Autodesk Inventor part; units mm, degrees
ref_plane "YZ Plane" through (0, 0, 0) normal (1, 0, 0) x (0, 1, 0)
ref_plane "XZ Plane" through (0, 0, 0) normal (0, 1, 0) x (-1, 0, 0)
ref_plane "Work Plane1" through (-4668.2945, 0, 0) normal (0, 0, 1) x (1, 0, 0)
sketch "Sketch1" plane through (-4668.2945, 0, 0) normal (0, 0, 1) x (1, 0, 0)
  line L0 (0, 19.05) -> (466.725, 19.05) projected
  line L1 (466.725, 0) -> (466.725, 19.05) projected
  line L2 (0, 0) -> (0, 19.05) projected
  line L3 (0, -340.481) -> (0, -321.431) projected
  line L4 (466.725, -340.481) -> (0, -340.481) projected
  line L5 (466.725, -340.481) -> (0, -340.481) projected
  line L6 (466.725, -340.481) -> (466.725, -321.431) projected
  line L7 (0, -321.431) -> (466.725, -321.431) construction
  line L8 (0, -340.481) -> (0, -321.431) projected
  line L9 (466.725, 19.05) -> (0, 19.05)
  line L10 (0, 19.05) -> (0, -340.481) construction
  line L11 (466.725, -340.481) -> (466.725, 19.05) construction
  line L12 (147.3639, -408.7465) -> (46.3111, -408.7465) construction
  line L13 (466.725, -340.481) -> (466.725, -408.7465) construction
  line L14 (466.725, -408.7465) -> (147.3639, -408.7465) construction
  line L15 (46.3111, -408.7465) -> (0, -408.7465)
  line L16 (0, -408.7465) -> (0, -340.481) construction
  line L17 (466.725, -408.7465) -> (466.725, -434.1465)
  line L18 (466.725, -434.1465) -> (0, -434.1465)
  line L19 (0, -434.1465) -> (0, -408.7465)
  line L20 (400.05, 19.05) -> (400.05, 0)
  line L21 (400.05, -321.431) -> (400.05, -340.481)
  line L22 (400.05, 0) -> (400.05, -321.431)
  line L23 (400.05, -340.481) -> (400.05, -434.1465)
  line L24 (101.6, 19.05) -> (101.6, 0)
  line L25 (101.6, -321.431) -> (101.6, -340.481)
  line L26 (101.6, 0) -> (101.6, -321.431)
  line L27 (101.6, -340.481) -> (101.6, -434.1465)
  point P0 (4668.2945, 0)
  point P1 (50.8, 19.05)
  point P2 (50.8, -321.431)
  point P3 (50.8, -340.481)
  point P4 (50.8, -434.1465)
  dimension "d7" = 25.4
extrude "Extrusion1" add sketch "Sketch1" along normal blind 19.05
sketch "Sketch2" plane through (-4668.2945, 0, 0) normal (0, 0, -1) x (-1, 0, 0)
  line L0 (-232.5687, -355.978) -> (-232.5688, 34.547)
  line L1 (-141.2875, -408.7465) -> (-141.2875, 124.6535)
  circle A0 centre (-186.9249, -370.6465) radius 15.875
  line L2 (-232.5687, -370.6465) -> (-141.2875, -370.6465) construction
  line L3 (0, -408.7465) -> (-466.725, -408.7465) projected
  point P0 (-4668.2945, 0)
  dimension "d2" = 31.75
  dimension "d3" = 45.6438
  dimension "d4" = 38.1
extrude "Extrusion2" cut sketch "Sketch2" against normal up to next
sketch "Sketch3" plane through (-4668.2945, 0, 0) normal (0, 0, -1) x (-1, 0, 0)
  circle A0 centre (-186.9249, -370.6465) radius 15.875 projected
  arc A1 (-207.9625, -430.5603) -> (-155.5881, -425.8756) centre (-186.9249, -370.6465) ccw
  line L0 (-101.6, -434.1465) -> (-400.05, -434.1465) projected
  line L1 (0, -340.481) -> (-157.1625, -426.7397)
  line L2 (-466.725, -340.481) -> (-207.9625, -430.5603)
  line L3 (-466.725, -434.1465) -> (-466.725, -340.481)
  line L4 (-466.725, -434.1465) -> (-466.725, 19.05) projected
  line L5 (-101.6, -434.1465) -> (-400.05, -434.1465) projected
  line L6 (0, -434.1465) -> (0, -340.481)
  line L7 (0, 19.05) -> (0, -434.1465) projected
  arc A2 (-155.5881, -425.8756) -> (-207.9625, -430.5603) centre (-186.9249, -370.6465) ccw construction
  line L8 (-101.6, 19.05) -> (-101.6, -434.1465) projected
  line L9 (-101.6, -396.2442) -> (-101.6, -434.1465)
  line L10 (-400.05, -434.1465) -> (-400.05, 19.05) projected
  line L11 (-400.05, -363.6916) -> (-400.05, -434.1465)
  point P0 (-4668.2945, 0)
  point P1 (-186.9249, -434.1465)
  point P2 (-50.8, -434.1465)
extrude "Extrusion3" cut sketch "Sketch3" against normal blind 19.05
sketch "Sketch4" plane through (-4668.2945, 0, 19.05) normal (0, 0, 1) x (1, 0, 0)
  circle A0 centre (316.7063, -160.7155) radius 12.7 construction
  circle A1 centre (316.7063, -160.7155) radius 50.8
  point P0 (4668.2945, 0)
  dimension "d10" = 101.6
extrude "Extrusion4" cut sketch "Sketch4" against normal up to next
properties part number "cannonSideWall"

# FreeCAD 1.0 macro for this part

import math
import FreeCAD as App
import Part
import Sketcher

V = App.Vector
Q = App.Units.Quantity


def add_polygon(sketch, points):
    """Adds a closed chain of lines whose ends are joined by coincident constraints."""
    first, n = sketch.GeometryCount, len(points)
    for a, b in zip(points, points[1:] + points[:1]):
        sketch.addGeometry(Part.LineSegment(App.Vector(*a, 0), App.Vector(*b, 0)), False)
    for i in range(n):
        sketch.addConstraint(Sketcher.Constraint("Coincident", first + i, 2, first + (i + 1) % n, 1))

doc = App.newDocument("Part")
params = doc.addObject("Spreadsheet::Sheet", "Params")
for row, (alias, value) in enumerate([
    ("sketch1_width", "11.75 in"),
    ("pad1_length", "0.75 in"),
    ("sketch2_diameter", "1.25 in"),
    ("sketch3_radius", "2.5 in"),
    ("sketch3_diameter", "1.25 in"),
    ("pocket2_length", "0.75 in"),
    ("sketch4_diameter", "4 in"),
], start=1):
    params.set(f"A{row}", alias)
    params.set(f"B{row}", "=" + value)
    params.setAlias(f"B{row}", alias)

body = doc.addObject("PartDesign::Body", "Body")

sketch1 = doc.addObject("Sketcher::SketchObject", "Sketch")
body.addObject(sketch1)
sketch1.AttachmentSupport = (doc.XY_Plane, [""])
sketch1.MapMode = "FlatFace"
add_polygon(sketch1, [(-4268, 19), (-4567, 19), (-4567, -434), (-4268, -434)])
sketch1.addConstraint([
    Sketcher.Constraint("Horizontal", 0),
    Sketcher.Constraint("Vertical", 1),
    Sketcher.Constraint("Horizontal", 2),
    Sketcher.Constraint("Vertical", 3),
    Sketcher.Constraint("DistanceX", 0, 2, 0, 1, Q("11.75 in")),
    Sketcher.Constraint("DistanceY", -1, 1, 0, 2, Q("0.75 in")),
    Sketcher.Constraint("DistanceY", 1, 2, 1, 1, 453.1965),
    Sketcher.Constraint("DistanceX", 0, 2, -1, 1, 4566.6945),
])
sketch1.setExpression("Constraints[8]", "Params.sketch1_width")
pad1 = doc.addObject("PartDesign::Pad", "Pad")
body.addObject(pad1)
pad1.Profile = sketch1
pad1.setExpression("Length", "Params.pad1_length")

sketch2 = doc.addObject("Sketcher::SketchObject", "Sketch001")
body.addObject(sketch2)
sketch2.AttachmentSupport = (doc.XY_Plane, [""])
sketch2.MapMode = "FlatFace"
sketch2.addGeometry(Part.Circle(V(-4481, -371, 0), V(0, 0, 1), 16), False)
sketch2.addConstraint([
    Sketcher.Constraint("Diameter", 0, Q("1.25 in")),
    Sketcher.Constraint("DistanceX", 0, 3, -1, 1, 4481.3696),
    Sketcher.Constraint("DistanceY", 0, 3, -1, 1, 370.6465),
])
sketch2.setExpression("Constraints[0]", "Params.sketch2_diameter")
pocket1 = doc.addObject("PartDesign::Pocket", "Pocket")
body.addObject(pocket1)
pocket1.Profile = sketch2
pocket1.Type = "UpToFirst"
pocket1.Reversed = True

sketch3 = doc.addObject("Sketcher::SketchObject", "Sketch002")
body.addObject(sketch3)
sketch3.AttachmentSupport = (doc.XY_Plane, [""])
sketch3.MapMode = "FlatFace"
sketch3.addGeometry([
    Part.Circle(V(-4481, -371, 0), V(0, 0, 1), 16),
    Part.ArcOfCircle(Part.Circle(V(-4481, -371, 0), V(0, 0, 1), 63), math.radians(-118), math.radians(-90)),
    Part.LineSegment(V(-4481, -434, 0), V(-4567, -434, 0)),
    Part.LineSegment(V(-4567, -434, 0), V(-4567, -396, 0)),
    Part.LineSegment(V(-4567, -396, 0), V(-4511, -427, 0)),
    Part.LineSegment(V(-4268, -434, 0), V(-4481, -434, 0)),
    Part.ArcOfCircle(Part.Circle(V(-4481, -371, 0), V(0, 0, 1), 63), math.radians(-90), math.radians(-70.65)),
    Part.LineSegment(V(-4460, -431, 0), V(-4268, -364, 0)),
    Part.LineSegment(V(-4268, -364, 0), V(-4268, -434, 0)),
], False)
sketch3.addConstraint([
    Sketcher.Constraint("Tangent", 1, 2, 2, 1),
    Sketcher.Constraint("Coincident", 2, 2, 3, 1),
    Sketcher.Constraint("Coincident", 3, 2, 4, 1),
    Sketcher.Constraint("Coincident", 4, 2, 1, 1),
    Sketcher.Constraint("Tangent", 5, 2, 6, 1),
    Sketcher.Constraint("Coincident", 6, 2, 7, 1),
    Sketcher.Constraint("Coincident", 7, 2, 8, 1),
    Sketcher.Constraint("Coincident", 8, 2, 5, 1),
    Sketcher.Constraint("Horizontal", 2),
    Sketcher.Constraint("Vertical", 3),
    Sketcher.Constraint("Horizontal", 5),
    Sketcher.Constraint("Vertical", 8),
    Sketcher.Constraint("Coincident", 1, 3, 0, 3),
    Sketcher.Constraint("Coincident", 6, 3, 0, 3),
    Sketcher.Constraint("Equal", 1, 6),
    Sketcher.Constraint("Radius", 1, Q("2.5 in")),
    Sketcher.Constraint("Diameter", 0, Q("1.25 in")),
    Sketcher.Constraint("DistanceX", 4, 2, 6, 2, Q("2 in")),
    Sketcher.Constraint("Angle", 4, Q("-28.7602 deg")),
    Sketcher.Constraint("DistanceX", 2, 2, 4, 2, Q("2.1875 in")),
    Sketcher.Constraint("DistanceX", 6, 2, 7, 2, Q("7.5625 in")),
    Sketcher.Constraint("DistanceX", 2, 2, 2, 1, 85.3249),
    Sketcher.Constraint("DistanceY", 8, 2, 8, 1, 70.455),
    Sketcher.Constraint("DistanceY", 6, 2, -1, 1, Q("16.9512 in")),
    Sketcher.Constraint("DistanceX", 0, 3, -1, 1, 4481.3696),
])
sketch3.setExpression("Constraints[15]", "Params.sketch3_radius")
sketch3.setExpression("Constraints[16]", "Params.sketch3_diameter")
pocket2 = doc.addObject("PartDesign::Pocket", "Pocket001")
body.addObject(pocket2)
pocket2.Profile = sketch3
pocket2.setExpression("Length", "Params.pocket2_length")
pocket2.Reversed = True

sketch4 = doc.addObject("Sketcher::SketchObject", "Sketch003")
body.addObject(sketch4)
sketch4.AttachmentSupport = (doc.XY_Plane, [""])
sketch4.MapMode = "FlatFace"
sketch4.AttachmentOffset = App.Placement(V(0, 0, 0.75 * 25.4), App.Rotation())
sketch4.addGeometry(Part.Circle(V(-4352, -161, 0), V(0, 0, 1), 51), False)
sketch4.addConstraint([
    Sketcher.Constraint("Diameter", 0, Q("4 in")),
    Sketcher.Constraint("DistanceX", 0, 3, -1, 1, 4351.5882),
    Sketcher.Constraint("DistanceY", 0, 3, -1, 1, 160.7155),
])
sketch4.setExpression("Constraints[0]", "Params.sketch4_diameter")
pocket3 = doc.addObject("PartDesign::Pocket", "Pocket002")
body.addObject(pocket3)
pocket3.Profile = sketch4
pocket3.Type = "UpToFirst"

doc.recompute()
